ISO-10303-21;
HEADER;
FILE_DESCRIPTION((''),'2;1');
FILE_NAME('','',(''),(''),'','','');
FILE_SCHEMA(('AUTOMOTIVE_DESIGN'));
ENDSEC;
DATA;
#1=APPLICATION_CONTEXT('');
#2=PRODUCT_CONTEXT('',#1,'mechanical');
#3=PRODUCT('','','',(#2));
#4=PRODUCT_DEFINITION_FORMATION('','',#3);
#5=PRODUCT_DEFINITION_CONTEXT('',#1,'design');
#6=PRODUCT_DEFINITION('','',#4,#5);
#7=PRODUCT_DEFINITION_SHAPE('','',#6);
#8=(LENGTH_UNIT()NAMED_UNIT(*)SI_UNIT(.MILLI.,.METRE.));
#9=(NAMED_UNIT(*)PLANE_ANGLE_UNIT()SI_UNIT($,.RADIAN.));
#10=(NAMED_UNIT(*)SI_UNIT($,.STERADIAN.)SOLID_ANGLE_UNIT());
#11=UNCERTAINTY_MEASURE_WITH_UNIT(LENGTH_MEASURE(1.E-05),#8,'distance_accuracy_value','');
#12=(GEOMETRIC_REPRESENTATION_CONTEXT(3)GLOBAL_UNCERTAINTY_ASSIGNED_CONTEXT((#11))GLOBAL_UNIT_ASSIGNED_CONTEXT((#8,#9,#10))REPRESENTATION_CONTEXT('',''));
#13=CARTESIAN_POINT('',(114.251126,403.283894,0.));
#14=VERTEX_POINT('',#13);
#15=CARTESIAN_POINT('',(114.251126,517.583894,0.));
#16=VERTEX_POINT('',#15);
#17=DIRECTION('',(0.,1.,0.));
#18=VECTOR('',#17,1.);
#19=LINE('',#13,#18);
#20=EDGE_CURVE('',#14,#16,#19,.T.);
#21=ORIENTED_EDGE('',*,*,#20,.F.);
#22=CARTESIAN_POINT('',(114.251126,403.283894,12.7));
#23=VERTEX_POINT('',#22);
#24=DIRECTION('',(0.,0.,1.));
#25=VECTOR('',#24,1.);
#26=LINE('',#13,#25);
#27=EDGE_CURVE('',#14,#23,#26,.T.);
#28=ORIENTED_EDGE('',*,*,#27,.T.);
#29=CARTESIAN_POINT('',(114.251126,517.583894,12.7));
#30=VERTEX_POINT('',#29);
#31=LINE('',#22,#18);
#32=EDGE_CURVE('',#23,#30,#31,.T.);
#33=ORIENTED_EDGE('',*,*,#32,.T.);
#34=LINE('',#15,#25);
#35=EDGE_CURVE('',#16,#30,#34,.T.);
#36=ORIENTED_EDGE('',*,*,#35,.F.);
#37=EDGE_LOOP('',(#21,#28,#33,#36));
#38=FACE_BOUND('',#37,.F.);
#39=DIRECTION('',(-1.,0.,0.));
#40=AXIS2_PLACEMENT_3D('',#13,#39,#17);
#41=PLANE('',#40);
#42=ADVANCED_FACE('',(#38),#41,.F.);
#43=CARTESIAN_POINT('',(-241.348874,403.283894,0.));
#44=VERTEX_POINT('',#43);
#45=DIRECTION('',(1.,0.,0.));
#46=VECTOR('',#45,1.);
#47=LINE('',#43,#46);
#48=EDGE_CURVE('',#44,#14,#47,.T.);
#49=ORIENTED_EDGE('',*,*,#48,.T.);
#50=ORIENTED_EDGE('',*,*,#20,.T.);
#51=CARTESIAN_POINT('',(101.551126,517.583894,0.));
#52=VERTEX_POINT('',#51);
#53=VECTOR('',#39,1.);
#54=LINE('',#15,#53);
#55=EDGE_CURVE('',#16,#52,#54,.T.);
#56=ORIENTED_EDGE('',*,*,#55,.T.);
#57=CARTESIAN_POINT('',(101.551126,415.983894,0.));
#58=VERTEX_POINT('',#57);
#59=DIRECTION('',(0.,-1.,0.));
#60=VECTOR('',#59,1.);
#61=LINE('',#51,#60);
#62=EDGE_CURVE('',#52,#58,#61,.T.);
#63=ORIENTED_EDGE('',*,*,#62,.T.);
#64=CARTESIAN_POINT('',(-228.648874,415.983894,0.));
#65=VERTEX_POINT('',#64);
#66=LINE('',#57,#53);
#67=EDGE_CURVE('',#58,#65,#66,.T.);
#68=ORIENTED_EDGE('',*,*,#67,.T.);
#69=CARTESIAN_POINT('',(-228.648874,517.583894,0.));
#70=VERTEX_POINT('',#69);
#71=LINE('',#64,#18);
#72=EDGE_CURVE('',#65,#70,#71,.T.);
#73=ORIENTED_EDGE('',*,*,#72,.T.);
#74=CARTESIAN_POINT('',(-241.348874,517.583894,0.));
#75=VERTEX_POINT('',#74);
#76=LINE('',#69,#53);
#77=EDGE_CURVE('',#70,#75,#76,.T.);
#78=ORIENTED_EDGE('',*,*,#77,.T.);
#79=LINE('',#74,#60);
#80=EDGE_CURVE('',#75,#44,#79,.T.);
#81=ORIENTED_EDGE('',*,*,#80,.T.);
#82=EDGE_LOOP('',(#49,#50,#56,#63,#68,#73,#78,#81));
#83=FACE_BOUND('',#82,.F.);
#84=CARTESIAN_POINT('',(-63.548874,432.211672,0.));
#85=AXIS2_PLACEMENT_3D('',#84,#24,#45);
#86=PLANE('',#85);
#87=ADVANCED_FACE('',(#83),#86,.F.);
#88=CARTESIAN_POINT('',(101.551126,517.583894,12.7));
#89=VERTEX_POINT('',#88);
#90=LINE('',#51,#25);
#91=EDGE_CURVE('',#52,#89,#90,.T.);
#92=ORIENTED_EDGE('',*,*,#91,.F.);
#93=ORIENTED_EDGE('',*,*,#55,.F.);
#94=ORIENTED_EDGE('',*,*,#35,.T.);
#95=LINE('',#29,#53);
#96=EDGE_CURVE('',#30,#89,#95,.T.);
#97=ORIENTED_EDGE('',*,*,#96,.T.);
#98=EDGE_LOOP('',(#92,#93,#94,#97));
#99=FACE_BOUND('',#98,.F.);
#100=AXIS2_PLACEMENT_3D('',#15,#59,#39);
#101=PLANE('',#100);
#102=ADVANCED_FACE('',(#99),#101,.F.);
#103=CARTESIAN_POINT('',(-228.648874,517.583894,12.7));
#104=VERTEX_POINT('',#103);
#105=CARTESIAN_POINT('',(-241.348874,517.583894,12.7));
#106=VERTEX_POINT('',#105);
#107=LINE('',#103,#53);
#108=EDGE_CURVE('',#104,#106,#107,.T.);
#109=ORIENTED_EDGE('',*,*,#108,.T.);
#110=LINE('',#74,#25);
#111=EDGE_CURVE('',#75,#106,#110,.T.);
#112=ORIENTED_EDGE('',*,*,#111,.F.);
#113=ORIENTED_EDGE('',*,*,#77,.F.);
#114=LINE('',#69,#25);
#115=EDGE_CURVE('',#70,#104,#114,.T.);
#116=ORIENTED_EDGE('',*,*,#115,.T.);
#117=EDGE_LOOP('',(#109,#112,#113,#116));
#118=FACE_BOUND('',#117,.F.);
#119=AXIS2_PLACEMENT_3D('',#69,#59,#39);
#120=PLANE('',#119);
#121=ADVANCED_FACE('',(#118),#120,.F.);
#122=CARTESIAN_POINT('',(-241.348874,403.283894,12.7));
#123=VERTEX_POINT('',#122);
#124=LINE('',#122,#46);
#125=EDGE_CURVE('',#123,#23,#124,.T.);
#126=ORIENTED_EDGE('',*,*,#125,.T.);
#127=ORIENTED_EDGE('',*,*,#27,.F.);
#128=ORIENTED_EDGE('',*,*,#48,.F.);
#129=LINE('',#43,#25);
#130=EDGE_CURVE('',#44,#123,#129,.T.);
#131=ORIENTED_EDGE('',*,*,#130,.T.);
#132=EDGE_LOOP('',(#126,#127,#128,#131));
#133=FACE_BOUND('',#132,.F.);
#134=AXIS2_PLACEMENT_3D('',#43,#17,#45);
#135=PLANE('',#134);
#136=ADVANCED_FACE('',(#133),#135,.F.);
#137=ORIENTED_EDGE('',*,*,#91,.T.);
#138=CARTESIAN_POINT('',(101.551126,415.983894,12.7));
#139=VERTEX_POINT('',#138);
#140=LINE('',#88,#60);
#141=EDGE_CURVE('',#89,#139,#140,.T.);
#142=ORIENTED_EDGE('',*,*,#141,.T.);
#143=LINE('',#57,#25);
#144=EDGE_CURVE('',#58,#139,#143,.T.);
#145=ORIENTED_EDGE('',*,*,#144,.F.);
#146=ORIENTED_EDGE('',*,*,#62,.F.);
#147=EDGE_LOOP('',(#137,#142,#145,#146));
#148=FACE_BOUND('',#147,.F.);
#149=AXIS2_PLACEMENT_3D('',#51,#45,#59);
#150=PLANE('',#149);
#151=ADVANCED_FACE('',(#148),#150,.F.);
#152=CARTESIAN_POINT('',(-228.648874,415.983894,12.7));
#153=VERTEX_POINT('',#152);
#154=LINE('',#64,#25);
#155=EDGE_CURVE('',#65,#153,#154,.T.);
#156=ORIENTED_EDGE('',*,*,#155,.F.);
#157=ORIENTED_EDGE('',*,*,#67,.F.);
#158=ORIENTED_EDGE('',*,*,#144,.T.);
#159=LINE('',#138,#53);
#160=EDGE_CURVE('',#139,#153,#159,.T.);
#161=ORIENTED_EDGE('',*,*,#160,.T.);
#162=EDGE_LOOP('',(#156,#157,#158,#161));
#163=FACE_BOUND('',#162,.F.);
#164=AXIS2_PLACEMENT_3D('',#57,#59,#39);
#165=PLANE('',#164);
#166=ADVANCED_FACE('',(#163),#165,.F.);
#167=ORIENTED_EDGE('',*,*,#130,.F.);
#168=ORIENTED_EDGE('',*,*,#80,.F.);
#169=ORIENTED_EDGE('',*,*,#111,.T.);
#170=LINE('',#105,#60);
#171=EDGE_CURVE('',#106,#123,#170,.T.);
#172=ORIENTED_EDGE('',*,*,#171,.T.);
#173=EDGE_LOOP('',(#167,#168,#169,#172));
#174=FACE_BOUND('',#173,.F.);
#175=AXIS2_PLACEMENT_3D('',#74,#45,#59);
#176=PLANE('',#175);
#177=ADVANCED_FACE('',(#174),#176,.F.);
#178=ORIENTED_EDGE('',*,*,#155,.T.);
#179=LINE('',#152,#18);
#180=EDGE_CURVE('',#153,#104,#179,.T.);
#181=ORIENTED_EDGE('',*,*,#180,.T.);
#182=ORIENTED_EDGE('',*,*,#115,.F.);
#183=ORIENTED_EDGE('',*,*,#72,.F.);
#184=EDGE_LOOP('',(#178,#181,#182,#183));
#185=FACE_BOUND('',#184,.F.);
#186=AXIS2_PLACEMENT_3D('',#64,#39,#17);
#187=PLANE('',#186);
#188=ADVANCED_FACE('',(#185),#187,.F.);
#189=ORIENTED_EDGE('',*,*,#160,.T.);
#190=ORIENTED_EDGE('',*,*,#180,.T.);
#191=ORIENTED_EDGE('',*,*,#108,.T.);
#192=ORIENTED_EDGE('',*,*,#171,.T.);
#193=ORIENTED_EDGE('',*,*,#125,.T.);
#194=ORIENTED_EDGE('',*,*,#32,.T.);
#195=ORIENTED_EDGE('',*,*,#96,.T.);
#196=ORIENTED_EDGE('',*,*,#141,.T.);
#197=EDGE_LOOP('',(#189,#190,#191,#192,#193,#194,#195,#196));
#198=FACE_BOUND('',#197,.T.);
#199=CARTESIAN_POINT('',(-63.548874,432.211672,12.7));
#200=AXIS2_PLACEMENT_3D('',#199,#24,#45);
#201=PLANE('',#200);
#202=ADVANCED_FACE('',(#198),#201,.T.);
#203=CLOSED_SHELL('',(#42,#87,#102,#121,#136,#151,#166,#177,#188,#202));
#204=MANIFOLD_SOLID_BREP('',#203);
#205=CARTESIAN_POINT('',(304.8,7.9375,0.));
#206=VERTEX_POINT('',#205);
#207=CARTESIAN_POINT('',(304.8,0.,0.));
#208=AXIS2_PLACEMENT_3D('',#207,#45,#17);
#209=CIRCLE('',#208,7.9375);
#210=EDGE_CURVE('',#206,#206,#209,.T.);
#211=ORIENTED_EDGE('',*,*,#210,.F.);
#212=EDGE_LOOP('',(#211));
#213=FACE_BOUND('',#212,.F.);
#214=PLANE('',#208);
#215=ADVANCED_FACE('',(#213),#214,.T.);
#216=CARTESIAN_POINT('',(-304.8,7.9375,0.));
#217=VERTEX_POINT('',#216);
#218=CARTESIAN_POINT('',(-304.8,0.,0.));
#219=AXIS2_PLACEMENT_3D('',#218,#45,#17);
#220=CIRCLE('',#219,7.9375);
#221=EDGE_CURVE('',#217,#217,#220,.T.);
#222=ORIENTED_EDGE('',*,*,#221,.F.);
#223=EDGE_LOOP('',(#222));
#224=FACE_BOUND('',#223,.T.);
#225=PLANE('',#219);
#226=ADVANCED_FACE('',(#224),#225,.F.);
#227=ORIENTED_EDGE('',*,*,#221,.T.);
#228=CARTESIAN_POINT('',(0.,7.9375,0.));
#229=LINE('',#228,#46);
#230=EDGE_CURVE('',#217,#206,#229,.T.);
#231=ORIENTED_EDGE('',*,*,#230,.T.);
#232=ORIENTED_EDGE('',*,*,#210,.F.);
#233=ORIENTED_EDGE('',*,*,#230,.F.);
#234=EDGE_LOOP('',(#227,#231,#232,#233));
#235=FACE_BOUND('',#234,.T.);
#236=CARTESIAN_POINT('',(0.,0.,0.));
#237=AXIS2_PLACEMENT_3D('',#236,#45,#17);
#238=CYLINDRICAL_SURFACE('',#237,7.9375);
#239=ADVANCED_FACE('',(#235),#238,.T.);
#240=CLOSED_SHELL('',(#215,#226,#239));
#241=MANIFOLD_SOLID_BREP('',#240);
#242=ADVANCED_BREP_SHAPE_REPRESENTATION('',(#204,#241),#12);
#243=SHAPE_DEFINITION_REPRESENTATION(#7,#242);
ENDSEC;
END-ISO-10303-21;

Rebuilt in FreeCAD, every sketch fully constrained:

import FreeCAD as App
import Part
import Sketcher

V = App.Vector
Q = App.Units.Quantity


def add_polygon(sketch, points):
    """Adds a closed chain of lines whose ends are joined by coincident constraints."""
    first, n = sketch.GeometryCount, len(points)
    for a, b in zip(points, points[1:] + points[:1]):
        sketch.addGeometry(Part.LineSegment(App.Vector(*a, 0), App.Vector(*b, 0)), False)
    for i in range(n):
        sketch.addConstraint(Sketcher.Constraint("Coincident", first + i, 2, first + (i + 1) % n, 1))

doc = App.newDocument("Part")
body = doc.addObject("PartDesign::Body", "Body")

sketch1 = body.newObject("Sketcher::SketchObject", "Sketch")
sketch1.AttachmentSupport = (doc.getObject("XY_Plane"), [""])
sketch1.MapMode = "FlatFace"
add_polygon(sketch1, [(-305, 8), (-305, 0), (305, 0), (305, 8)])
sketch1.addConstraint([
    Sketcher.Constraint("Vertical", 0),
    Sketcher.Constraint("Horizontal", 1),
    Sketcher.Constraint("Vertical", 2),
    Sketcher.Constraint("Horizontal", 3),
    Sketcher.Constraint("Symmetric", 0, 2, 1, 2, -1, 1),
    Sketcher.Constraint("DistanceX", 1, 1, 1, 2, Q("24 in")),
    Sketcher.Constraint("DistanceY", 0, 2, 0, 1, Q("0.3125 in")),
])
revolution = body.newObject("PartDesign::Revolution", "Revolution")
revolution.Profile = sketch1
revolution.ReferenceAxis = (sketch1, ["H_Axis"])
revolution.Angle = 360
body2 = doc.addObject("PartDesign::Body", "Body001")

sketch2 = body2.newObject("Sketcher::SketchObject", "Sketch001")
sketch2.AttachmentSupport = (doc.getObject("XY_Plane001"), [""])
sketch2.MapMode = "FlatFace"
add_polygon(sketch2, [(-229, 518), (-241, 518), (-241, 403), (114, 403), (114, 518), (102, 518), (102, 416), (-229, 416)])
sketch2.addConstraint([
    Sketcher.Constraint("Horizontal", 0),
    Sketcher.Constraint("Vertical", 1),
    Sketcher.Constraint("Horizontal", 2),
    Sketcher.Constraint("Vertical", 3),
    Sketcher.Constraint("Horizontal", 4),
    Sketcher.Constraint("Vertical", 5),
    Sketcher.Constraint("Horizontal", 6),
    Sketcher.Constraint("Vertical", 7),
    Sketcher.Constraint("Horizontal", 0, 2, 3, 2),
    Sketcher.Constraint("Equal", 0, 4),
    Sketcher.Constraint("DistanceX", 2, 1, 2, 2, Q("14 in")),
    Sketcher.Constraint("DistanceX", 6, 2, 6, 1, Q("13 in")),
    Sketcher.Constraint("DistanceY", 5, 2, 5, 1, Q("4 in")),
    Sketcher.Constraint("DistanceY", 1, 2, 1, 1, Q("4.5 in")),
    Sketcher.Constraint("DistanceX", 0, 2, -1, 1, Q("241.348874 mm")),
    Sketcher.Constraint("DistanceY", -1, 1, 0, 2, Q("517.583894 mm")),
])
pad1 = body2.newObject("PartDesign::Pad", "Pad")
pad1.Profile = sketch2
pad1.Length = Q("0.5 in")

doc.recompute()
